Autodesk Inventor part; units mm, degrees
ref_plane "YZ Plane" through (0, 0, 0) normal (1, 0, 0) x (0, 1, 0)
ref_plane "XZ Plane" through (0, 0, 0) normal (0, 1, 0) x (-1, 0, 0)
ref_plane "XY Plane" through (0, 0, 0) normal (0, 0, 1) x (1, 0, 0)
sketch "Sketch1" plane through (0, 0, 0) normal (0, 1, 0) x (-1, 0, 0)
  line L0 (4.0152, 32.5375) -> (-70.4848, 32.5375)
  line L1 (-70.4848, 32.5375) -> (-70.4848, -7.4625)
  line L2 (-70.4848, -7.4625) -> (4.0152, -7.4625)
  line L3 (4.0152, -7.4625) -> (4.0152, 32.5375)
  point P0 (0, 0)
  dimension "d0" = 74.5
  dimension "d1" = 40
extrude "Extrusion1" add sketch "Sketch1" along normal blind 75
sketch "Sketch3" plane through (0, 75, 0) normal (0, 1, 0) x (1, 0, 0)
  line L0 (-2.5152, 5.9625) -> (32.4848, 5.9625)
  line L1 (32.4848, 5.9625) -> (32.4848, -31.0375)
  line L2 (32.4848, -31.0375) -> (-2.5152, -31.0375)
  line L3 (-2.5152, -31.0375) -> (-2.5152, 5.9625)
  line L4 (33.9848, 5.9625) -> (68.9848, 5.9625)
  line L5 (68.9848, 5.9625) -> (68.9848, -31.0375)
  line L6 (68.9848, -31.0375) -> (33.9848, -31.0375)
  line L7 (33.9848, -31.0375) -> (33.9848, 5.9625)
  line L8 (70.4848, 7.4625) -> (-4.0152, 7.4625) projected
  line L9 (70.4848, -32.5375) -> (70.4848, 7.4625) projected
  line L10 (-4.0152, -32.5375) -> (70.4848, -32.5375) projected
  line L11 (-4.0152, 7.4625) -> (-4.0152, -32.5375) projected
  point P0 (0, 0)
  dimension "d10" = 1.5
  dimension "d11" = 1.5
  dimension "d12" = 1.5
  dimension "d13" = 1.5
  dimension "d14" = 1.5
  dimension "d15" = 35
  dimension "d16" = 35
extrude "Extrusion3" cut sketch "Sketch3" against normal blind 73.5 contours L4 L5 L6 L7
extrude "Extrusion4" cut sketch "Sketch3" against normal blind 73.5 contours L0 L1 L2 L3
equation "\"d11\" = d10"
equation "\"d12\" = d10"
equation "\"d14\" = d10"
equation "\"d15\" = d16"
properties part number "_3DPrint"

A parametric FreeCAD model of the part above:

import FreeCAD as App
import Part
import Sketcher
from FreeCAD import Vector
Q = App.Units.Quantity


def add_polygon(sketch, points):
    """Adds a closed chain of lines whose ends are joined by coincident constraints."""
    first, n = sketch.GeometryCount, len(points)
    for a, b in zip(points, points[1:] + points[:1]):
        sketch.addGeometry(Part.LineSegment(App.Vector(*a, 0), App.Vector(*b, 0)), False)
    for i in range(n):
        sketch.addConstraint(Sketcher.Constraint("Coincident", first + i, 2, first + (i + 1) % n, 1))

doc = App.newDocument("Part")
body = doc.addObject("PartDesign::Body", "Body")

sketch1 = doc.addObject("Sketcher::SketchObject", "Sketch")
body.addObject(sketch1)
sketch1.AttachmentSupport = (doc.XZ_Plane, [""])
sketch1.MapMode = "FlatFace"
add_polygon(sketch1, [(-4, -7), (-4, 33), (70, 33), (70, -7)])
sketch1.addConstraint(Sketcher.Constraint("Vertical", 0))
sketch1.addConstraint(Sketcher.Constraint("Horizontal", 1))
sketch1.addConstraint(Sketcher.Constraint("Vertical", 2))
sketch1.addConstraint(Sketcher.Constraint("Horizontal", 3))
sketch1.addConstraint(Sketcher.Constraint("DistanceY", 0, 1, 0, 2, Q("40 mm")))
sketch1.addConstraint(Sketcher.Constraint("DistanceX", 1, 1, 1, 2, Q("74.5 mm")))
sketch1.addConstraint(Sketcher.Constraint("DistanceX", 0, 2, -1, 1, Q("4.0152 mm")))
sketch1.addConstraint(Sketcher.Constraint("DistanceY", -1, 1, 0, 2, Q("32.5375 mm")))
pad1 = doc.addObject("PartDesign::Pad", "Pad")
body.addObject(pad1)
pad1.Profile = sketch1
pad1.Length = 75
pad1.Reversed = True

sketch2 = doc.addObject("Sketcher::SketchObject", "Sketch001")
body.addObject(sketch2)
sketch2.AttachmentSupport = (doc.XZ_Plane, [""])
sketch2.MapMode = "FlatFace"
sketch2.AttachmentOffset = App.Placement(Vector(0, 0, -75), App.Rotation())
add_polygon(sketch2, [(69, -6), (34, -6), (34, 31), (69, 31)])
sketch2.addConstraint(Sketcher.Constraint("Horizontal", 0))
sketch2.addConstraint(Sketcher.Constraint("Vertical", 1))
sketch2.addConstraint(Sketcher.Constraint("Horizontal", 2))
sketch2.addConstraint(Sketcher.Constraint("Vertical", 3))
sketch2.addConstraint(Sketcher.Constraint("DistanceX", 0, 2, 0, 1, Q("35 mm")))
sketch2.addConstraint(Sketcher.Constraint("DistanceY", 1, 1, 1, 2, Q("37 mm")))
sketch2.addConstraint(Sketcher.Constraint("DistanceX", -1, 1, 0, 2, Q("33.9848 mm")))
sketch2.addConstraint(Sketcher.Constraint("DistanceY", 0, 2, -1, 1, Q("5.9625 mm")))
pocket1 = doc.addObject("PartDesign::Pocket", "Pocket")
body.addObject(pocket1)
pocket1.Profile = sketch2
pocket1.Length = 73.5
pocket1.Reversed = True

sketch3 = doc.addObject("Sketcher::SketchObject", "Sketch002")
body.addObject(sketch3)
sketch3.AttachmentSupport = (doc.XZ_Plane, [""])
sketch3.MapMode = "FlatFace"
sketch3.AttachmentOffset = App.Placement(Vector(0, 0, -75), App.Rotation())
add_polygon(sketch3, [(32, -6), (-3, -6), (-3, 31), (32, 31)])
sketch3.addConstraint(Sketcher.Constraint("Horizontal", 0))
sketch3.addConstraint(Sketcher.Constraint("Vertical", 1))
sketch3.addConstraint(Sketcher.Constraint("Horizontal", 2))
sketch3.addConstraint(Sketcher.Constraint("Vertical", 3))
sketch3.addConstraint(Sketcher.Constraint("DistanceX", 0, 2, 0, 1, Q("35 mm")))
sketch3.addConstraint(Sketcher.Constraint("DistanceY", 1, 1, 1, 2, Q("37 mm")))
sketch3.addConstraint(Sketcher.Constraint("DistanceX", 0, 2, -1, 1, Q("2.5152 mm")))
sketch3.addConstraint(Sketcher.Constraint("DistanceY", 0, 2, -1, 1, Q("5.9625 mm")))
pocket2 = doc.addObject("PartDesign::Pocket", "Pocket001")
body.addObject(pocket2)
pocket2.Profile = sketch3
pocket2.Length = 73.5
pocket2.Reversed = True

doc.recompute()
